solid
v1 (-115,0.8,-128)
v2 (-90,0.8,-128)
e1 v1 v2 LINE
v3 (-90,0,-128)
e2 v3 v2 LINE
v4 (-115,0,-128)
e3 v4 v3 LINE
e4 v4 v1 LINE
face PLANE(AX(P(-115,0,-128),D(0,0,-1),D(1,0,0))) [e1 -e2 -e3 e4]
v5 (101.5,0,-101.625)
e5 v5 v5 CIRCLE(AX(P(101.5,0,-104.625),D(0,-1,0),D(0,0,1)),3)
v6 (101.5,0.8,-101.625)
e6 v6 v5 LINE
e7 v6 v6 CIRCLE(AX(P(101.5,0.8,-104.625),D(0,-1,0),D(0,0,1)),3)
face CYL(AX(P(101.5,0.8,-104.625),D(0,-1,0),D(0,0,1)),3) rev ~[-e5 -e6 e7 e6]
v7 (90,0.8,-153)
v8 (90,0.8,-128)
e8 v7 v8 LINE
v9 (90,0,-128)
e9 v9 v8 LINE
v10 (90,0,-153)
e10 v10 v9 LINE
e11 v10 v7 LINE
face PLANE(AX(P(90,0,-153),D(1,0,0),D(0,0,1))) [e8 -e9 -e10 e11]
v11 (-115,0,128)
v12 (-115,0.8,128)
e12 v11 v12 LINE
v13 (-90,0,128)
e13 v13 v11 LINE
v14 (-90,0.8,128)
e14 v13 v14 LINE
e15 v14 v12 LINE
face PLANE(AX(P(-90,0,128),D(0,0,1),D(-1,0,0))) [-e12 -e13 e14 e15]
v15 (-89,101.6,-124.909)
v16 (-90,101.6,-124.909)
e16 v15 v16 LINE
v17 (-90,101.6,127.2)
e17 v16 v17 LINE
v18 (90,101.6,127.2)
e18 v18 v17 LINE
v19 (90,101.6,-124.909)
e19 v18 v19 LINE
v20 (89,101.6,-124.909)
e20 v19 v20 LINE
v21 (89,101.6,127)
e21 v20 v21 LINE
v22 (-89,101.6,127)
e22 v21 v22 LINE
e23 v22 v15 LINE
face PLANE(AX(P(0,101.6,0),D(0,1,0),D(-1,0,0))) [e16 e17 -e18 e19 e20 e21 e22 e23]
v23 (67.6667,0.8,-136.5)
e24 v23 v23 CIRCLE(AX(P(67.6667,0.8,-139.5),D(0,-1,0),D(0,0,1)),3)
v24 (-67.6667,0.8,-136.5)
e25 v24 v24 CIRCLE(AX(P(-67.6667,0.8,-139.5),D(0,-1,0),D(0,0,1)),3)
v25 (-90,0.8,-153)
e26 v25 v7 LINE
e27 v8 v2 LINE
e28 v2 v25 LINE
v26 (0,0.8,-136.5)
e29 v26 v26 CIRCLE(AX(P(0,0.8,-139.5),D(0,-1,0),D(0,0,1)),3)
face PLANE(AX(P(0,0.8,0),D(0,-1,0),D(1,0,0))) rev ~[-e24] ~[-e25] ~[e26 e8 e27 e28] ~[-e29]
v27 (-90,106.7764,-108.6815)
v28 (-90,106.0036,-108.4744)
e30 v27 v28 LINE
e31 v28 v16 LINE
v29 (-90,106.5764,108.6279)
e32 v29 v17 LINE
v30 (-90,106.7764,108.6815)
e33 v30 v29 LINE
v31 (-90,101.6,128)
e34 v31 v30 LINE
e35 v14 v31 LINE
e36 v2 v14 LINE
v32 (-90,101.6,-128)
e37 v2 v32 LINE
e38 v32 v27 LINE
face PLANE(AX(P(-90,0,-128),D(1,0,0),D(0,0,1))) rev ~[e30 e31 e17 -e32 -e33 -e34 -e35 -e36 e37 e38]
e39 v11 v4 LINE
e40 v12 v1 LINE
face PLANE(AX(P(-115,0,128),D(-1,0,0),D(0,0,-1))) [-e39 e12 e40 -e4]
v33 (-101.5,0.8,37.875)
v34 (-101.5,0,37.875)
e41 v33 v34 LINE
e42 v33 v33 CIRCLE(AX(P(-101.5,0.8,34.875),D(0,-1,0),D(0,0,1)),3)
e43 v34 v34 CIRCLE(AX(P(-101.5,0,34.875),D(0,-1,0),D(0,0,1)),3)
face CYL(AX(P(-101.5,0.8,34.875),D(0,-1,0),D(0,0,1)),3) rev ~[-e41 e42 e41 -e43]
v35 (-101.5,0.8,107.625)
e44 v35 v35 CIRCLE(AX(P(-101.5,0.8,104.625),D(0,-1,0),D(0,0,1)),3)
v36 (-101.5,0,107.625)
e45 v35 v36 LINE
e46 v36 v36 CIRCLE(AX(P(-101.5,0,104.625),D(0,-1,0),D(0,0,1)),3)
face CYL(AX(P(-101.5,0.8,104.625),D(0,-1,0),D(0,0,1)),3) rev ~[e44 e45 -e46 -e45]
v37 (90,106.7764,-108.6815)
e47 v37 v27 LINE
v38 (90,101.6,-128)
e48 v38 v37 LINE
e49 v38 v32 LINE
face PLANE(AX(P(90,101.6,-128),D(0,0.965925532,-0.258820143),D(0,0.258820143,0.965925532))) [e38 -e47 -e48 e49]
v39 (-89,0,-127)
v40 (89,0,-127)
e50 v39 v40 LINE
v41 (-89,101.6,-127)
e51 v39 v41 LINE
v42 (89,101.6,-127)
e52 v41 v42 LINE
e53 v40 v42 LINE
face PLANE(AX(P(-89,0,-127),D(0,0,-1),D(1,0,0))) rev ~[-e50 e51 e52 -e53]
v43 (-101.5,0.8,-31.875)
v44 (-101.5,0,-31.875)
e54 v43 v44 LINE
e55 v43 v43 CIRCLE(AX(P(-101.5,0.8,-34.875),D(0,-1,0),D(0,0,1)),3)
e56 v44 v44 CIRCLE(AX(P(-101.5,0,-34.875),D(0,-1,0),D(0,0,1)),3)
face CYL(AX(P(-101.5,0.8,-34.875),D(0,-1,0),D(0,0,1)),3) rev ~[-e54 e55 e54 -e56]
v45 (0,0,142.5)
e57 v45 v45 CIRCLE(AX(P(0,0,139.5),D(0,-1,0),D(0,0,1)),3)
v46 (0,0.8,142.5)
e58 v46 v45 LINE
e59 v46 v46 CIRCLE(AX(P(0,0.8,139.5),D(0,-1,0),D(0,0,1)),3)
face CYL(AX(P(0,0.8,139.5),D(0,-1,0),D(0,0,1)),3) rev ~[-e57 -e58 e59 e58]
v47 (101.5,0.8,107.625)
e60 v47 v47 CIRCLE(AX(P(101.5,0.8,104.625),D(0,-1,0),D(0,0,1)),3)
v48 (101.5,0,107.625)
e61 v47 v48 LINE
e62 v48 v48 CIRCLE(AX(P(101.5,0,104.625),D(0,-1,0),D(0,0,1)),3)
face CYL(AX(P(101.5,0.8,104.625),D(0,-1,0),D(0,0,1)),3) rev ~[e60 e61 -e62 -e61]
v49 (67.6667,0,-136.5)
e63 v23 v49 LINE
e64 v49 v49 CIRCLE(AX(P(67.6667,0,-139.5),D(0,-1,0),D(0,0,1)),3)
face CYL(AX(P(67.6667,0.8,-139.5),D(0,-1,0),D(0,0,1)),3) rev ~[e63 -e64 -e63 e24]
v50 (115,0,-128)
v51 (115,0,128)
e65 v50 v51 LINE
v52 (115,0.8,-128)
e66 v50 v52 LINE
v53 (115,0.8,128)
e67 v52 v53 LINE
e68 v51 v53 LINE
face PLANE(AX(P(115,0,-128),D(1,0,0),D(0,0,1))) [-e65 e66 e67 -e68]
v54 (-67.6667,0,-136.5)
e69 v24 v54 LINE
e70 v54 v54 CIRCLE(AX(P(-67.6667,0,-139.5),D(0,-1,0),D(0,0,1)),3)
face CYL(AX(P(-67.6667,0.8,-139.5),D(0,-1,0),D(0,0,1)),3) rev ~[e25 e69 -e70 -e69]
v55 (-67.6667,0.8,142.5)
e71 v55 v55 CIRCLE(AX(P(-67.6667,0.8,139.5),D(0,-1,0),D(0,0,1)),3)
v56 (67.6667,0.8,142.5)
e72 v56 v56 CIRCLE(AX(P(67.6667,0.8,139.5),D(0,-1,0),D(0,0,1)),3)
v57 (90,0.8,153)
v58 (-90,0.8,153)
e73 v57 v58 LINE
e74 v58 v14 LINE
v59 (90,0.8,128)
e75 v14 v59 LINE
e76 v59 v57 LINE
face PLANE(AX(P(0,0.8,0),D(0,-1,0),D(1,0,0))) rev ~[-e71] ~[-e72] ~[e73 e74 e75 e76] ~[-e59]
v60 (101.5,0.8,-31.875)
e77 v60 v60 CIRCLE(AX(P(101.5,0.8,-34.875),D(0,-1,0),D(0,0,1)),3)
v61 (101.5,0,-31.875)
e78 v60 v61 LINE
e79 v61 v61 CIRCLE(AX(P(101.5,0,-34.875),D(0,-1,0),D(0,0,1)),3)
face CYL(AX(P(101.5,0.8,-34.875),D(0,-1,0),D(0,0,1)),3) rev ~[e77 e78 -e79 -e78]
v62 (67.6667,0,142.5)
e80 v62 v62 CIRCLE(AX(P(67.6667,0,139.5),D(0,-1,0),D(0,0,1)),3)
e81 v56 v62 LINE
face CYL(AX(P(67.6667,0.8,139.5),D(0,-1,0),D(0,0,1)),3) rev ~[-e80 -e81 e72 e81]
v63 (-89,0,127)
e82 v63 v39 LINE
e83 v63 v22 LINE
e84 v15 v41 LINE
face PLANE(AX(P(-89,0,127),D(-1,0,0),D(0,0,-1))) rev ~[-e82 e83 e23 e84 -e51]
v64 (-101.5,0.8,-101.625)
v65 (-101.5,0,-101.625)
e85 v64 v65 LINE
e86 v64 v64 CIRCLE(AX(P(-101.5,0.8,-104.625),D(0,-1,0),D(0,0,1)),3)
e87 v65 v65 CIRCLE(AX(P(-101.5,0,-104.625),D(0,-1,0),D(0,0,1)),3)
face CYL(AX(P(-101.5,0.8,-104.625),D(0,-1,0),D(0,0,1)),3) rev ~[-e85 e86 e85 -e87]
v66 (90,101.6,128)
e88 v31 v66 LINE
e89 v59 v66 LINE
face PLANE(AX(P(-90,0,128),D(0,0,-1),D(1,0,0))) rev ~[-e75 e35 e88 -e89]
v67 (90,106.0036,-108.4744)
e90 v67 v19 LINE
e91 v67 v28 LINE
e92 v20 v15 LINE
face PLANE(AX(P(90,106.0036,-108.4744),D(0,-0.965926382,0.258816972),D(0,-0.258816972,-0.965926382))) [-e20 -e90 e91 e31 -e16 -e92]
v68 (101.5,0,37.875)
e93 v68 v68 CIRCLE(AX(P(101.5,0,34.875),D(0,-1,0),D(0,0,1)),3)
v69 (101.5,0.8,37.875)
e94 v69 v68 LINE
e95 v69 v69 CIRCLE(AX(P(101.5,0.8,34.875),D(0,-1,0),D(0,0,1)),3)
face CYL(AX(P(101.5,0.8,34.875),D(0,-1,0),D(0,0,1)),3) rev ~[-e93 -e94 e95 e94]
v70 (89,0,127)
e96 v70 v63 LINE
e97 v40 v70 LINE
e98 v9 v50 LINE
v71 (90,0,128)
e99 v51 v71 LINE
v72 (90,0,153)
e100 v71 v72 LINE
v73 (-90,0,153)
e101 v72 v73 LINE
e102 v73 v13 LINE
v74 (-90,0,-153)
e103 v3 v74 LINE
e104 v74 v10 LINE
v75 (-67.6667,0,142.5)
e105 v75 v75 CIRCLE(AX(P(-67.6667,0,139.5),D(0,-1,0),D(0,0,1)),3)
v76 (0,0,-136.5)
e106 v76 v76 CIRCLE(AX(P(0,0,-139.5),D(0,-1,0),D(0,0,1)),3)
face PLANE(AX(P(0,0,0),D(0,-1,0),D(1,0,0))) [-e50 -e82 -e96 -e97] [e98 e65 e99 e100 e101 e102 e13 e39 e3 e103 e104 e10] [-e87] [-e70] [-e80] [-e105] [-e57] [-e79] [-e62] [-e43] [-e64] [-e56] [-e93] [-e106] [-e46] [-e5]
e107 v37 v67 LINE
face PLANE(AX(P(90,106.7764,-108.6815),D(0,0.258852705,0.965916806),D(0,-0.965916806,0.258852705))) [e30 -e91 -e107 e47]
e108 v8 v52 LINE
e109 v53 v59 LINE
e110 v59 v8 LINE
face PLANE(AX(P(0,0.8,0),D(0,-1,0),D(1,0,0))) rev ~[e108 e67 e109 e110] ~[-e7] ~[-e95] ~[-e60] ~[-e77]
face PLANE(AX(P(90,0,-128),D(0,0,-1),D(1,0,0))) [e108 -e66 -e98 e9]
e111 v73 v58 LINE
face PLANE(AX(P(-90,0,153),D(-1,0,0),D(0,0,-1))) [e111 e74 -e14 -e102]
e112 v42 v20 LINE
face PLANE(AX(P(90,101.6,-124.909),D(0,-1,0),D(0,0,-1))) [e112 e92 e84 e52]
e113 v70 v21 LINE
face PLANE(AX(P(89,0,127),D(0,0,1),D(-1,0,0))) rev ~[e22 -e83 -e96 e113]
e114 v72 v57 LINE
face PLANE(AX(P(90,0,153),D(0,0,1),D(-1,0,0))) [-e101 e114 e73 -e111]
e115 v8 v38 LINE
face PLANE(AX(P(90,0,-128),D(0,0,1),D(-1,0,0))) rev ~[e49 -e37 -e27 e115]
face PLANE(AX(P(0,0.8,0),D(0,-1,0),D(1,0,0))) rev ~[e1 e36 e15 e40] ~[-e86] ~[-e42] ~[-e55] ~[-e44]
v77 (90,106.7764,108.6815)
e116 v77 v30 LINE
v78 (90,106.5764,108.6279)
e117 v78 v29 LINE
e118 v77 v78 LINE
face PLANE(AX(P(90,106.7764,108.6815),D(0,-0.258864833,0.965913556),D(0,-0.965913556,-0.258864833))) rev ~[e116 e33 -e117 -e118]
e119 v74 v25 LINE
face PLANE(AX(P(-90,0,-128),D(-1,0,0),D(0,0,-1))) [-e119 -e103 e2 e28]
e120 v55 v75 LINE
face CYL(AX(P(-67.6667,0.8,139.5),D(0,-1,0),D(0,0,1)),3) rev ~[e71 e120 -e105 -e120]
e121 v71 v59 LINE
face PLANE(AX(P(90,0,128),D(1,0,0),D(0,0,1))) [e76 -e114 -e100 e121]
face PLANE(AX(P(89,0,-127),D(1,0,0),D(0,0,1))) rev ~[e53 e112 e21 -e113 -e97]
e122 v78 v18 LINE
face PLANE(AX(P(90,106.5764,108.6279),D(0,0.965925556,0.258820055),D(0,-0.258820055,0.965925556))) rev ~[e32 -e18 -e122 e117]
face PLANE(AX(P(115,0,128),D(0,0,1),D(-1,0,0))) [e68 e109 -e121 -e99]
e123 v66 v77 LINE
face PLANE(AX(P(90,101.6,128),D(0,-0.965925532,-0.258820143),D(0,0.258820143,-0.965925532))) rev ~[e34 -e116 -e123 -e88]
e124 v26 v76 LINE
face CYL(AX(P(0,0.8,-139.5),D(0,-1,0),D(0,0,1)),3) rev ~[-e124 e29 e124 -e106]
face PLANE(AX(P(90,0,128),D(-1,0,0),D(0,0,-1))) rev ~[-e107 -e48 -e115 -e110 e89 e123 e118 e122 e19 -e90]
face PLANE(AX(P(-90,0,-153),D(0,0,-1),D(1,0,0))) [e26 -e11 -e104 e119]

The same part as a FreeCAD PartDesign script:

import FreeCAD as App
import Part
import Sketcher

V = App.Vector
Q = App.Units.Quantity


def add_polygon(sketch, points):
    """Adds a closed chain of lines whose ends are joined by coincident constraints."""
    first, n = sketch.GeometryCount, len(points)
    for a, b in zip(points, points[1:] + points[:1]):
        sketch.addGeometry(Part.LineSegment(App.Vector(*a, 0), App.Vector(*b, 0)), False)
    for i in range(n):
        sketch.addConstraint(Sketcher.Constraint("Coincident", first + i, 2, first + (i + 1) % n, 1))

doc = App.newDocument("Part")
params = doc.addObject("Spreadsheet::Sheet", "Params")
for row, (alias, value) in enumerate([
    ("sketch1_width", "178 mm"),
    ("sketch1_height", "254 mm"),
    ("pad1_length", "101.6 mm"),
    ("sketch2_width", "25 mm"),
    ("sketch2_width2", "180 mm"),
    ("sketch2_height", "256 mm"),
    ("pad2_length", "0.8 mm"),
    ("sketch3_diameter", "6 mm"),
    ("hole_diameter", "6 mm"),
    ("sketch4_length", "20 mm"),
    ("sketch4_height", "0.8 mm"),
    ("sketch4_length2", "0.8 mm"),
    ("pad3_length", "180 mm"),
], start=1):
    params.set(f"A{row}", alias)
    params.set(f"B{row}", "=" + value)
    params.setAlias(f"B{row}", alias)

body = doc.addObject("PartDesign::Body", "Body")

# Sketch on XZ plane
sketch1 = doc.addObject("Sketcher::SketchObject", "Sketch")
body.addObject(sketch1)
sketch1.AttachmentSupport = (doc.XZ_Plane, [""])
sketch1.MapMode = "FlatFace"
add_polygon(sketch1, [(-90, -128), (-90, 128), (90, 128), (90, -128)])  # lines 0-3
add_polygon(sketch1, [(89, -127), (89, 127), (-89, 127), (-89, -127)])  # lines 4-7
sketch1.addConstraint([
    Sketcher.Constraint("Vertical", 0),
    Sketcher.Constraint("Horizontal", 1),
    Sketcher.Constraint("Vertical", 2),
    Sketcher.Constraint("Horizontal", 3),
    Sketcher.Constraint("Vertical", 4),
    Sketcher.Constraint("Horizontal", 5),
    Sketcher.Constraint("Vertical", 6),
    Sketcher.Constraint("Horizontal", 7),
    Sketcher.Constraint("Symmetric", 0, 2, 2, 2, -1, 1),
    Sketcher.Constraint("Symmetric", 4, 2, 6, 2, -1, 1),
    Sketcher.Constraint("DistanceX", 5, 2, 5, 1, 178.0),
    Sketcher.Constraint("DistanceY", 4, 1, 4, 2, 254.0),
    Sketcher.Constraint("DistanceX", 4, 2, 1, 2, 1.0),
    Sketcher.Constraint("DistanceY", 4, 2, 1, 2, 1.0),
])
sketch1.setExpression("Constraints[18]", "Params.sketch1_width")
sketch1.setExpression("Constraints[19]", "Params.sketch1_height")
pad1 = doc.addObject("PartDesign::Pad", "Pad")
body.addObject(pad1)
pad1.Profile = sketch1
pad1.setExpression("Length", "Params.pad1_length")
pad1.Reversed = True

# Sketch on XZ plane
sketch2 = doc.addObject("Sketcher::SketchObject", "Sketch001")
body.addObject(sketch2)
sketch2.AttachmentSupport = (doc.XZ_Plane, [""])
sketch2.MapMode = "FlatFace"
add_polygon(sketch2, [(115, 128), (90, 128), (90, -128), (115, -128)])  # lines 0-3
add_polygon(sketch2, [(-90, 128), (90, 128), (90, 153), (-90, 153)])  # lines 4-7
add_polygon(sketch2, [(90, -153), (90, -128), (-90, -128), (-90, -153)])  # lines 8-11
add_polygon(sketch2, [(-90, -128), (-90, 128), (-115, 128), (-115, -128)])  # lines 12-15
sketch2.addConstraint([
    Sketcher.Constraint("Horizontal", 0),
    Sketcher.Constraint("Vertical", 1),
    Sketcher.Constraint("Horizontal", 2),
    Sketcher.Constraint("Vertical", 3),
    Sketcher.Constraint("Horizontal", 4),
    Sketcher.Constraint("Vertical", 5),
    Sketcher.Constraint("Horizontal", 6),
    Sketcher.Constraint("Vertical", 7),
    Sketcher.Constraint("Vertical", 8),
    Sketcher.Constraint("Horizontal", 9),
    Sketcher.Constraint("Vertical", 10),
    Sketcher.Constraint("Horizontal", 11),
    Sketcher.Constraint("Vertical", 12),
    Sketcher.Constraint("Horizontal", 13),
    Sketcher.Constraint("Vertical", 14),
    Sketcher.Constraint("Horizontal", 15),
    Sketcher.Constraint("Coincident", 4, 2, 0, 2),
    Sketcher.Constraint("Coincident", 8, 2, 1, 2),
    Sketcher.Constraint("Coincident", 12, 2, 7, 2),
    Sketcher.Constraint("Coincident", 15, 2, 9, 2),
    Sketcher.Constraint("Symmetric", 1, 2, 7, 2, -1, 1),
    Sketcher.Constraint("Equal", 2, 13),
    Sketcher.Constraint("Equal", 15, 5),
    Sketcher.Constraint("Equal", 7, 8),
    Sketcher.Constraint("DistanceX", 0, 2, 0, 1, 25.0),
    Sketcher.Constraint("DistanceX", 4, 1, 4, 2, 180.0),
    Sketcher.Constraint("DistanceY", 1, 2, 1, 1, 256.0),
])
sketch2.setExpression("Constraints[40]", "Params.sketch2_width")
sketch2.setExpression("Constraints[41]", "Params.sketch2_width2")
sketch2.setExpression("Constraints[42]", "Params.sketch2_height")
pad2 = doc.addObject("PartDesign::Pad", "Pad001")
body.addObject(pad2)
pad2.Profile = sketch2
pad2.setExpression("Length", "Params.pad2_length")
pad2.Reversed = True

# Sketch on XZ plane
sketch3 = doc.addObject("Sketcher::SketchObject", "Sketch002")
body.addObject(sketch3)
sketch3.AttachmentSupport = (doc.XZ_Plane, [""])
sketch3.MapMode = "FlatFace"
sketch3.AttachmentOffset = App.Placement(V(0, 0, -0.8), App.Rotation())
sketch3.addGeometry([
    Part.Circle(V(101.5, -139.5, 0), V(0, 0, 1), 3),  # 0
    Part.Circle(V(101.5, -104.6, 0), V(0, 0, 1), 3),  # 1
    Part.Circle(V(101.5, -34.9, 0), V(0, 0, 1), 3),  # 2
    Part.Circle(V(101.5, 34.9, 0), V(0, 0, 1), 3),  # 3
    Part.Circle(V(101.5, 104.6, 0), V(0, 0, 1), 3),  # 4
    Part.Circle(V(101.5, 139.5, 0), V(0, 0, 1), 3),  # 5
    Part.Circle(V(67.7, -139.5, 0), V(0, 0, 1), 3),  # 6
    Part.Circle(V(0, -139.5, 0), V(0, 0, 1), 3),  # 7
    Part.Circle(V(-67.7, -139.5, 0), V(0, 0, 1), 3),  # 8
    Part.Circle(V(-101.5, -139.5, 0), V(0, 0, 1), 3),  # 9
    Part.Circle(V(67.7, 139.5, 0), V(0, 0, 1), 3),  # 10
    Part.Circle(V(0, 139.5, 0), V(0, 0, 1), 3),  # 11
    Part.Circle(V(-67.7, 139.5, 0), V(0, 0, 1), 3),  # 12
    Part.Circle(V(-101.5, 139.5, 0), V(0, 0, 1), 3),  # 13
    Part.Circle(V(-101.5, -104.6, 0), V(0, 0, 1), 3),  # 14
    Part.Circle(V(-101.5, -34.9, 0), V(0, 0, 1), 3),  # 15
    Part.Circle(V(-101.5, 34.9, 0), V(0, 0, 1), 3),  # 16
    Part.Circle(V(-101.5, 104.6, 0), V(0, 0, 1), 3),  # 17
], False)
sketch3.addConstraint([
    Sketcher.Constraint("Equal", 0, 1),
    Sketcher.Constraint("Equal", 1, 2),
    Sketcher.Constraint("Equal", 2, 3),
    Sketcher.Constraint("Equal", 3, 4),
    Sketcher.Constraint("Equal", 4, 5),
    Sketcher.Constraint("Equal", 5, 6),
    Sketcher.Constraint("Equal", 6, 7),
    Sketcher.Constraint("Equal", 7, 8),
    Sketcher.Constraint("Equal", 8, 9),
    Sketcher.Constraint("Equal", 9, 10),
    Sketcher.Constraint("Equal", 10, 11),
    Sketcher.Constraint("Equal", 11, 12),
    Sketcher.Constraint("Equal", 12, 13),
    Sketcher.Constraint("Equal", 13, 14),
    Sketcher.Constraint("Equal", 14, 15),
    Sketcher.Constraint("Equal", 15, 16),
    Sketcher.Constraint("Equal", 16, 17),
    Sketcher.Constraint("Symmetric", 5, 3, 9, 3, -1, 1),
    Sketcher.Constraint("Symmetric", 8, 3, 10, 3, -1, 1),
    Sketcher.Constraint("Symmetric", 7, 3, 11, 3, -1, 1),
    Sketcher.Constraint("Symmetric", 6, 3, 12, 3, -1, 1),
    Sketcher.Constraint("Symmetric", 0, 3, 13, 3, -1, 1),
    Sketcher.Constraint("Symmetric", 4, 3, 14, 3, -1, 1),
    Sketcher.Constraint("Symmetric", 3, 3, 15, 3, -1, 1),
    Sketcher.Constraint("Symmetric", 2, 3, 16, 3, -1, 1),
    Sketcher.Constraint("Symmetric", 1, 3, 17, 3, -1, 1),
    Sketcher.Constraint("Symmetric", 6, 3, 8, 3, -2),
    Sketcher.Constraint("Symmetric", 0, 3, 9, 3, -2),
    Sketcher.Constraint("Symmetric", 1, 3, 14, 3, -2),
    Sketcher.Constraint("Symmetric", 2, 3, 15, 3, -2),
    Sketcher.Constraint("PointOnObject", 7, 3, -2),
    Sketcher.Constraint("Horizontal", 0, 3, 6, 3),
    Sketcher.Constraint("Horizontal", 6, 3, 7, 3),
    Sketcher.Constraint("Vertical", 0, 3, 1, 3),
    Sketcher.Constraint("Vertical", 1, 3, 2, 3),
    Sketcher.Constraint("Diameter", 0, 6.0),
    Sketcher.Constraint("DistanceY", 0, 3, 5, 3, 279.0),
    Sketcher.Constraint("DistanceX", 9, 3, 0, 3, 203.0),
    Sketcher.Constraint("DistanceY", 1, 3, 3, 3, 139.5),
    Sketcher.Constraint("DistanceY", 1, 3, 2, 3, 69.75),
    Sketcher.Constraint("DistanceX", -1, 1, 6, 3, 67.6667),
])
sketch3.setExpression("Constraints[35]", "Params.sketch3_diameter")
doc.recompute()
hole = doc.addObject("PartDesign::Hole", "Hole")
body.addObject(hole)
hole.Profile = sketch3
hole.ThreadType = "None"
hole.setExpression("Diameter", "Params.hole_diameter")
hole.DepthType = "ThroughAll"
hole.Reversed = True

# Sketch on YZ plane
sketch4 = doc.addObject("Sketcher::SketchObject", "Sketch003")
body.addObject(sketch4)
sketch4.AttachmentSupport = (doc.YZ_Plane, [""])
sketch4.MapMode = "FlatFace"
sketch4.AttachmentOffset = App.Placement(V(0, 0, 90), App.Rotation())
add_polygon(sketch4, [(106, -108.47), (101.6, -124.91), (101.6, -128), (106.78, -108.68)])  # lines 0-3
add_polygon(sketch4, [(106.78, 108.68), (101.6, 128), (101.6, 127.2), (106.58, 108.63)])  # lines 4-7
sketch4.addConstraint([
    Sketcher.Constraint("Vertical", 1),
    Sketcher.Constraint("Vertical", 5),
    Sketcher.Constraint("Symmetric", 1, 2, 4, 2, -1),
    Sketcher.Constraint("Symmetric", 2, 2, 7, 2, -1),
    Sketcher.Constraint("Parallel", 0, 2),
    Sketcher.Constraint("Perpendicular", 2, 3),
    Sketcher.Constraint("Parallel", 4, 6),
    Sketcher.Constraint("Perpendicular", 6, 7),
    Sketcher.Constraint("Distance", 2, 20.0),
    Sketcher.Constraint("DistanceY", 5, 2, 5, 1, 0.8),
    Sketcher.Constraint("Distance", 3, 0.8),
    Sketcher.Constraint("Angle", 0, Q("-104.9999 deg")),
    Sketcher.Constraint("DistanceY", 1, 2, -1, 1, 128.0),
    Sketcher.Constraint("DistanceX", -1, 1, 0, 2, 101.6),
])
sketch4.setExpression("Constraints[16]", "Params.sketch4_length")
sketch4.setExpression("Constraints[17]", "Params.sketch4_height")
sketch4.setExpression("Constraints[18]", "Params.sketch4_length2")
pad3 = doc.addObject("PartDesign::Pad", "Pad002")
body.addObject(pad3)
pad3.Profile = sketch4
pad3.setExpression("Length", "Params.pad3_length")
pad3.Reversed = True

doc.recompute()
